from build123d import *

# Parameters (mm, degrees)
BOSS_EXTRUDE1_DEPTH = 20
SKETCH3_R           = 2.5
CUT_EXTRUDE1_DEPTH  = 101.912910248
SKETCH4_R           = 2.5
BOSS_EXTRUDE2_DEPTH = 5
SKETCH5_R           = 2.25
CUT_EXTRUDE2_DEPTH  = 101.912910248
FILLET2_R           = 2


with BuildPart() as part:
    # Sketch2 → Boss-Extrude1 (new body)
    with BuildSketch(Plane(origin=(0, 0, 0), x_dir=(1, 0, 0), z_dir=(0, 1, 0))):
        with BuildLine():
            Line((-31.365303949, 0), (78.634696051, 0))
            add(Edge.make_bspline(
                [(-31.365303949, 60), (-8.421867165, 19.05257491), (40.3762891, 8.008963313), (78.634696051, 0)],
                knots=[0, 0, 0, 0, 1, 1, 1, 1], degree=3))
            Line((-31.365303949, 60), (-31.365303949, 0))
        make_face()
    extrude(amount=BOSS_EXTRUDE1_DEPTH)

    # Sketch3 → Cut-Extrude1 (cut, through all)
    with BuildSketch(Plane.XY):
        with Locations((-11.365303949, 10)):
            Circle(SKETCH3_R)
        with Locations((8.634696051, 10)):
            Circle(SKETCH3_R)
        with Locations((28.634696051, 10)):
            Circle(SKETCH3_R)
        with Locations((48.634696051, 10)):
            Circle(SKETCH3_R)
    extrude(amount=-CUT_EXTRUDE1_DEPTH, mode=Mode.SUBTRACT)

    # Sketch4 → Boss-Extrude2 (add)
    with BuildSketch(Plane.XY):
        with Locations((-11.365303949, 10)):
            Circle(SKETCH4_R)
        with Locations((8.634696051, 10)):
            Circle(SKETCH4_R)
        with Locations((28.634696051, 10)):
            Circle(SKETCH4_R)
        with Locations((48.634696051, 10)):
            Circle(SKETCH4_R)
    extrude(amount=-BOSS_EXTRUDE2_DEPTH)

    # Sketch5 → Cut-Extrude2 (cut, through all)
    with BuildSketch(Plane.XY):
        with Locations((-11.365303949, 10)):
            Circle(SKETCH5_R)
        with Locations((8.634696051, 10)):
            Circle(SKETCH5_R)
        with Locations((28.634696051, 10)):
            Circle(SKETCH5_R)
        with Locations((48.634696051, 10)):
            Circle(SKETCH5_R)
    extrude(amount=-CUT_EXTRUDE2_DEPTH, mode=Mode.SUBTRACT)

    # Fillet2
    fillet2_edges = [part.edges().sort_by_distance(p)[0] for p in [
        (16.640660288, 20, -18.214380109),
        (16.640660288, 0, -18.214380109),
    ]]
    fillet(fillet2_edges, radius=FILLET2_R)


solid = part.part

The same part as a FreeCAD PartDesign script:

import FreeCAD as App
import Part
import Sketcher
from FreeCAD import Vector
Q = App.Units.Quantity


def edges_at(feature, points):
    """Names of the edges that pass closest to the given points."""
    edges = feature.Shape.Edges
    near = lambda p: min(range(len(edges)), key=lambda i: edges[i].distToShape(Part.Vertex(*p))[0])
    return sorted({f"Edge{near(p) + 1}" for p in points})

doc = App.newDocument("Part")
body = doc.addObject("PartDesign::Body", "Body")

# Sketch on XZ plane
sketch1 = body.newObject("Sketcher::SketchObject", "Sketch")
sketch1.AttachmentSupport = (doc.getObject("XZ_Plane"), [""])
sketch1.MapMode = "FlatFace"
sketch1.addGeometry([
    Part.LineSegment(Vector(-31.365304, 0, 0), Vector(78.634696, 0, 0)),
    Part.BSplineCurve([Vector(-31.365304, -60, 0), Vector(-8.421867, -19.052575, 0), Vector(40.376289, -8.008963, 0), Vector(78.634696, 0, 0)], [4, 4], [0, 1], False, 3, [1, 1, 1, 1], False),
    Part.LineSegment(Vector(-31.365304, -60, 0), Vector(-31.365304, 0, 0)),
], False)
sketch1.addConstraint([
    Sketcher.Constraint("Block", 1),
    Sketcher.Constraint("Coincident", 0, 2, 1, 2),
    Sketcher.Constraint("Coincident", 1, 1, 2, 1),
    Sketcher.Constraint("Coincident", 2, 2, 0, 1),
    Sketcher.Constraint("Horizontal", 0),
    Sketcher.Constraint("Vertical", 2),
])
pad1 = body.newObject("PartDesign::Pad", "Pad")
pad1.Profile = sketch1
pad1.Length = 20
pad1.Reversed = True

# Sketch on XY plane
sketch2 = body.newObject("Sketcher::SketchObject", "Sketch001")
sketch2.AttachmentSupport = (doc.getObject("XY_Plane"), [""])
sketch2.MapMode = "FlatFace"
sketch2.addGeometry([
    Part.Circle(Vector(-11.4, 10, 0), Vector(0, 0, 1), 2.5),
    Part.Circle(Vector(8.6, 10, 0), Vector(0, 0, 1), 2.5),
    Part.Circle(Vector(28.6, 10, 0), Vector(0, 0, 1), 2.5),
    Part.Circle(Vector(48.6, 10, 0), Vector(0, 0, 1), 2.5),
], False)
sketch2.addConstraint([
    Sketcher.Constraint("Equal", 0, 1),
    Sketcher.Constraint("Equal", 1, 2),
    Sketcher.Constraint("Equal", 2, 3),
    Sketcher.Constraint("Horizontal", 0, 3, 1, 3),
    Sketcher.Constraint("Horizontal", 1, 3, 2, 3),
    Sketcher.Constraint("Horizontal", 2, 3, 3, 3),
    Sketcher.Constraint("Diameter", 0, Q("5 mm")),
    Sketcher.Constraint("DistanceY", -1, 1, 0, 3, Q("10 mm")),
    Sketcher.Constraint("DistanceX", 0, 3, 1, 3, Q("20 mm")),
    Sketcher.Constraint("DistanceX", 1, 3, 2, 3, Q("20 mm")),
    Sketcher.Constraint("DistanceX", 2, 3, 3, 3, Q("20 mm")),
    Sketcher.Constraint("DistanceX", 0, 3, -1, 1, Q("11.365304 mm")),
])
pocket1 = body.newObject("PartDesign::Pocket", "Pocket")
pocket1.Profile = sketch2
pocket1.Type = "ThroughAll"

# Sketch on XY plane
sketch3 = body.newObject("Sketcher::SketchObject", "Sketch002")
sketch3.AttachmentSupport = (doc.getObject("XY_Plane"), [""])
sketch3.MapMode = "FlatFace"
sketch3.addGeometry([
    Part.Circle(Vector(-11.4, 10, 0), Vector(0, 0, 1), 2.5),
    Part.Circle(Vector(8.6, 10, 0), Vector(0, 0, 1), 2.5),
    Part.Circle(Vector(28.6, 10, 0), Vector(0, 0, 1), 2.5),
    Part.Circle(Vector(48.6, 10, 0), Vector(0, 0, 1), 2.5),
], False)
sketch3.addConstraint([
    Sketcher.Constraint("Equal", 0, 1),
    Sketcher.Constraint("Equal", 1, 2),
    Sketcher.Constraint("Equal", 2, 3),
    Sketcher.Constraint("Horizontal", 0, 3, 1, 3),
    Sketcher.Constraint("Horizontal", 1, 3, 2, 3),
    Sketcher.Constraint("Horizontal", 2, 3, 3, 3),
    Sketcher.Constraint("Diameter", 0, Q("5 mm")),
    Sketcher.Constraint("DistanceY", -1, 1, 0, 3, Q("10 mm")),
    Sketcher.Constraint("DistanceX", 0, 3, 1, 3, Q("20 mm")),
    Sketcher.Constraint("DistanceX", 1, 3, 2, 3, Q("20 mm")),
    Sketcher.Constraint("DistanceX", 2, 3, 3, 3, Q("20 mm")),
    Sketcher.Constraint("DistanceX", 0, 3, -1, 1, Q("11.365304 mm")),
])
pad2 = body.newObject("PartDesign::Pad", "Pad001")
pad2.Profile = sketch3
pad2.Length = 5
pad2.Reversed = True

# Sketch on XY plane
sketch4 = body.newObject("Sketcher::SketchObject", "Sketch003")
sketch4.AttachmentSupport = (doc.getObject("XY_Plane"), [""])
sketch4.MapMode = "FlatFace"
sketch4.addGeometry([
    Part.Circle(Vector(-11.4, 10, 0), Vector(0, 0, 1), 2.2),
    Part.Circle(Vector(8.6, 10, 0), Vector(0, 0, 1), 2.2),
    Part.Circle(Vector(28.6, 10, 0), Vector(0, 0, 1), 2.2),
    Part.Circle(Vector(48.6, 10, 0), Vector(0, 0, 1), 2.2),
], False)
sketch4.addConstraint([
    Sketcher.Constraint("Equal", 0, 1),
    Sketcher.Constraint("Equal", 1, 2),
    Sketcher.Constraint("Equal", 2, 3),
    Sketcher.Constraint("Horizontal", 0, 3, 1, 3),
    Sketcher.Constraint("Horizontal", 1, 3, 2, 3),
    Sketcher.Constraint("Horizontal", 2, 3, 3, 3),
    Sketcher.Constraint("Diameter", 0, Q("4.5 mm")),
    Sketcher.Constraint("DistanceY", -1, 1, 0, 3, Q("10 mm")),
    Sketcher.Constraint("DistanceX", 0, 3, 1, 3, Q("20 mm")),
    Sketcher.Constraint("DistanceX", 1, 3, 2, 3, Q("20 mm")),
    Sketcher.Constraint("DistanceX", 2, 3, 3, 3, Q("20 mm")),
    Sketcher.Constraint("DistanceX", 0, 3, -1, 1, Q("11.365304 mm")),
])
pocket2 = body.newObject("PartDesign::Pocket", "Pocket001")
pocket2.Profile = sketch4
pocket2.Type = "ThroughAll"
doc.recompute()

fillet = body.newObject("PartDesign::Fillet", "Fillet")
fillet.Base = (pocket2, edges_at(pocket2, [(16.641, 20, -18.214), (16.641, 0, -18.214)]))
fillet.Radius = 2

doc.recompute()
